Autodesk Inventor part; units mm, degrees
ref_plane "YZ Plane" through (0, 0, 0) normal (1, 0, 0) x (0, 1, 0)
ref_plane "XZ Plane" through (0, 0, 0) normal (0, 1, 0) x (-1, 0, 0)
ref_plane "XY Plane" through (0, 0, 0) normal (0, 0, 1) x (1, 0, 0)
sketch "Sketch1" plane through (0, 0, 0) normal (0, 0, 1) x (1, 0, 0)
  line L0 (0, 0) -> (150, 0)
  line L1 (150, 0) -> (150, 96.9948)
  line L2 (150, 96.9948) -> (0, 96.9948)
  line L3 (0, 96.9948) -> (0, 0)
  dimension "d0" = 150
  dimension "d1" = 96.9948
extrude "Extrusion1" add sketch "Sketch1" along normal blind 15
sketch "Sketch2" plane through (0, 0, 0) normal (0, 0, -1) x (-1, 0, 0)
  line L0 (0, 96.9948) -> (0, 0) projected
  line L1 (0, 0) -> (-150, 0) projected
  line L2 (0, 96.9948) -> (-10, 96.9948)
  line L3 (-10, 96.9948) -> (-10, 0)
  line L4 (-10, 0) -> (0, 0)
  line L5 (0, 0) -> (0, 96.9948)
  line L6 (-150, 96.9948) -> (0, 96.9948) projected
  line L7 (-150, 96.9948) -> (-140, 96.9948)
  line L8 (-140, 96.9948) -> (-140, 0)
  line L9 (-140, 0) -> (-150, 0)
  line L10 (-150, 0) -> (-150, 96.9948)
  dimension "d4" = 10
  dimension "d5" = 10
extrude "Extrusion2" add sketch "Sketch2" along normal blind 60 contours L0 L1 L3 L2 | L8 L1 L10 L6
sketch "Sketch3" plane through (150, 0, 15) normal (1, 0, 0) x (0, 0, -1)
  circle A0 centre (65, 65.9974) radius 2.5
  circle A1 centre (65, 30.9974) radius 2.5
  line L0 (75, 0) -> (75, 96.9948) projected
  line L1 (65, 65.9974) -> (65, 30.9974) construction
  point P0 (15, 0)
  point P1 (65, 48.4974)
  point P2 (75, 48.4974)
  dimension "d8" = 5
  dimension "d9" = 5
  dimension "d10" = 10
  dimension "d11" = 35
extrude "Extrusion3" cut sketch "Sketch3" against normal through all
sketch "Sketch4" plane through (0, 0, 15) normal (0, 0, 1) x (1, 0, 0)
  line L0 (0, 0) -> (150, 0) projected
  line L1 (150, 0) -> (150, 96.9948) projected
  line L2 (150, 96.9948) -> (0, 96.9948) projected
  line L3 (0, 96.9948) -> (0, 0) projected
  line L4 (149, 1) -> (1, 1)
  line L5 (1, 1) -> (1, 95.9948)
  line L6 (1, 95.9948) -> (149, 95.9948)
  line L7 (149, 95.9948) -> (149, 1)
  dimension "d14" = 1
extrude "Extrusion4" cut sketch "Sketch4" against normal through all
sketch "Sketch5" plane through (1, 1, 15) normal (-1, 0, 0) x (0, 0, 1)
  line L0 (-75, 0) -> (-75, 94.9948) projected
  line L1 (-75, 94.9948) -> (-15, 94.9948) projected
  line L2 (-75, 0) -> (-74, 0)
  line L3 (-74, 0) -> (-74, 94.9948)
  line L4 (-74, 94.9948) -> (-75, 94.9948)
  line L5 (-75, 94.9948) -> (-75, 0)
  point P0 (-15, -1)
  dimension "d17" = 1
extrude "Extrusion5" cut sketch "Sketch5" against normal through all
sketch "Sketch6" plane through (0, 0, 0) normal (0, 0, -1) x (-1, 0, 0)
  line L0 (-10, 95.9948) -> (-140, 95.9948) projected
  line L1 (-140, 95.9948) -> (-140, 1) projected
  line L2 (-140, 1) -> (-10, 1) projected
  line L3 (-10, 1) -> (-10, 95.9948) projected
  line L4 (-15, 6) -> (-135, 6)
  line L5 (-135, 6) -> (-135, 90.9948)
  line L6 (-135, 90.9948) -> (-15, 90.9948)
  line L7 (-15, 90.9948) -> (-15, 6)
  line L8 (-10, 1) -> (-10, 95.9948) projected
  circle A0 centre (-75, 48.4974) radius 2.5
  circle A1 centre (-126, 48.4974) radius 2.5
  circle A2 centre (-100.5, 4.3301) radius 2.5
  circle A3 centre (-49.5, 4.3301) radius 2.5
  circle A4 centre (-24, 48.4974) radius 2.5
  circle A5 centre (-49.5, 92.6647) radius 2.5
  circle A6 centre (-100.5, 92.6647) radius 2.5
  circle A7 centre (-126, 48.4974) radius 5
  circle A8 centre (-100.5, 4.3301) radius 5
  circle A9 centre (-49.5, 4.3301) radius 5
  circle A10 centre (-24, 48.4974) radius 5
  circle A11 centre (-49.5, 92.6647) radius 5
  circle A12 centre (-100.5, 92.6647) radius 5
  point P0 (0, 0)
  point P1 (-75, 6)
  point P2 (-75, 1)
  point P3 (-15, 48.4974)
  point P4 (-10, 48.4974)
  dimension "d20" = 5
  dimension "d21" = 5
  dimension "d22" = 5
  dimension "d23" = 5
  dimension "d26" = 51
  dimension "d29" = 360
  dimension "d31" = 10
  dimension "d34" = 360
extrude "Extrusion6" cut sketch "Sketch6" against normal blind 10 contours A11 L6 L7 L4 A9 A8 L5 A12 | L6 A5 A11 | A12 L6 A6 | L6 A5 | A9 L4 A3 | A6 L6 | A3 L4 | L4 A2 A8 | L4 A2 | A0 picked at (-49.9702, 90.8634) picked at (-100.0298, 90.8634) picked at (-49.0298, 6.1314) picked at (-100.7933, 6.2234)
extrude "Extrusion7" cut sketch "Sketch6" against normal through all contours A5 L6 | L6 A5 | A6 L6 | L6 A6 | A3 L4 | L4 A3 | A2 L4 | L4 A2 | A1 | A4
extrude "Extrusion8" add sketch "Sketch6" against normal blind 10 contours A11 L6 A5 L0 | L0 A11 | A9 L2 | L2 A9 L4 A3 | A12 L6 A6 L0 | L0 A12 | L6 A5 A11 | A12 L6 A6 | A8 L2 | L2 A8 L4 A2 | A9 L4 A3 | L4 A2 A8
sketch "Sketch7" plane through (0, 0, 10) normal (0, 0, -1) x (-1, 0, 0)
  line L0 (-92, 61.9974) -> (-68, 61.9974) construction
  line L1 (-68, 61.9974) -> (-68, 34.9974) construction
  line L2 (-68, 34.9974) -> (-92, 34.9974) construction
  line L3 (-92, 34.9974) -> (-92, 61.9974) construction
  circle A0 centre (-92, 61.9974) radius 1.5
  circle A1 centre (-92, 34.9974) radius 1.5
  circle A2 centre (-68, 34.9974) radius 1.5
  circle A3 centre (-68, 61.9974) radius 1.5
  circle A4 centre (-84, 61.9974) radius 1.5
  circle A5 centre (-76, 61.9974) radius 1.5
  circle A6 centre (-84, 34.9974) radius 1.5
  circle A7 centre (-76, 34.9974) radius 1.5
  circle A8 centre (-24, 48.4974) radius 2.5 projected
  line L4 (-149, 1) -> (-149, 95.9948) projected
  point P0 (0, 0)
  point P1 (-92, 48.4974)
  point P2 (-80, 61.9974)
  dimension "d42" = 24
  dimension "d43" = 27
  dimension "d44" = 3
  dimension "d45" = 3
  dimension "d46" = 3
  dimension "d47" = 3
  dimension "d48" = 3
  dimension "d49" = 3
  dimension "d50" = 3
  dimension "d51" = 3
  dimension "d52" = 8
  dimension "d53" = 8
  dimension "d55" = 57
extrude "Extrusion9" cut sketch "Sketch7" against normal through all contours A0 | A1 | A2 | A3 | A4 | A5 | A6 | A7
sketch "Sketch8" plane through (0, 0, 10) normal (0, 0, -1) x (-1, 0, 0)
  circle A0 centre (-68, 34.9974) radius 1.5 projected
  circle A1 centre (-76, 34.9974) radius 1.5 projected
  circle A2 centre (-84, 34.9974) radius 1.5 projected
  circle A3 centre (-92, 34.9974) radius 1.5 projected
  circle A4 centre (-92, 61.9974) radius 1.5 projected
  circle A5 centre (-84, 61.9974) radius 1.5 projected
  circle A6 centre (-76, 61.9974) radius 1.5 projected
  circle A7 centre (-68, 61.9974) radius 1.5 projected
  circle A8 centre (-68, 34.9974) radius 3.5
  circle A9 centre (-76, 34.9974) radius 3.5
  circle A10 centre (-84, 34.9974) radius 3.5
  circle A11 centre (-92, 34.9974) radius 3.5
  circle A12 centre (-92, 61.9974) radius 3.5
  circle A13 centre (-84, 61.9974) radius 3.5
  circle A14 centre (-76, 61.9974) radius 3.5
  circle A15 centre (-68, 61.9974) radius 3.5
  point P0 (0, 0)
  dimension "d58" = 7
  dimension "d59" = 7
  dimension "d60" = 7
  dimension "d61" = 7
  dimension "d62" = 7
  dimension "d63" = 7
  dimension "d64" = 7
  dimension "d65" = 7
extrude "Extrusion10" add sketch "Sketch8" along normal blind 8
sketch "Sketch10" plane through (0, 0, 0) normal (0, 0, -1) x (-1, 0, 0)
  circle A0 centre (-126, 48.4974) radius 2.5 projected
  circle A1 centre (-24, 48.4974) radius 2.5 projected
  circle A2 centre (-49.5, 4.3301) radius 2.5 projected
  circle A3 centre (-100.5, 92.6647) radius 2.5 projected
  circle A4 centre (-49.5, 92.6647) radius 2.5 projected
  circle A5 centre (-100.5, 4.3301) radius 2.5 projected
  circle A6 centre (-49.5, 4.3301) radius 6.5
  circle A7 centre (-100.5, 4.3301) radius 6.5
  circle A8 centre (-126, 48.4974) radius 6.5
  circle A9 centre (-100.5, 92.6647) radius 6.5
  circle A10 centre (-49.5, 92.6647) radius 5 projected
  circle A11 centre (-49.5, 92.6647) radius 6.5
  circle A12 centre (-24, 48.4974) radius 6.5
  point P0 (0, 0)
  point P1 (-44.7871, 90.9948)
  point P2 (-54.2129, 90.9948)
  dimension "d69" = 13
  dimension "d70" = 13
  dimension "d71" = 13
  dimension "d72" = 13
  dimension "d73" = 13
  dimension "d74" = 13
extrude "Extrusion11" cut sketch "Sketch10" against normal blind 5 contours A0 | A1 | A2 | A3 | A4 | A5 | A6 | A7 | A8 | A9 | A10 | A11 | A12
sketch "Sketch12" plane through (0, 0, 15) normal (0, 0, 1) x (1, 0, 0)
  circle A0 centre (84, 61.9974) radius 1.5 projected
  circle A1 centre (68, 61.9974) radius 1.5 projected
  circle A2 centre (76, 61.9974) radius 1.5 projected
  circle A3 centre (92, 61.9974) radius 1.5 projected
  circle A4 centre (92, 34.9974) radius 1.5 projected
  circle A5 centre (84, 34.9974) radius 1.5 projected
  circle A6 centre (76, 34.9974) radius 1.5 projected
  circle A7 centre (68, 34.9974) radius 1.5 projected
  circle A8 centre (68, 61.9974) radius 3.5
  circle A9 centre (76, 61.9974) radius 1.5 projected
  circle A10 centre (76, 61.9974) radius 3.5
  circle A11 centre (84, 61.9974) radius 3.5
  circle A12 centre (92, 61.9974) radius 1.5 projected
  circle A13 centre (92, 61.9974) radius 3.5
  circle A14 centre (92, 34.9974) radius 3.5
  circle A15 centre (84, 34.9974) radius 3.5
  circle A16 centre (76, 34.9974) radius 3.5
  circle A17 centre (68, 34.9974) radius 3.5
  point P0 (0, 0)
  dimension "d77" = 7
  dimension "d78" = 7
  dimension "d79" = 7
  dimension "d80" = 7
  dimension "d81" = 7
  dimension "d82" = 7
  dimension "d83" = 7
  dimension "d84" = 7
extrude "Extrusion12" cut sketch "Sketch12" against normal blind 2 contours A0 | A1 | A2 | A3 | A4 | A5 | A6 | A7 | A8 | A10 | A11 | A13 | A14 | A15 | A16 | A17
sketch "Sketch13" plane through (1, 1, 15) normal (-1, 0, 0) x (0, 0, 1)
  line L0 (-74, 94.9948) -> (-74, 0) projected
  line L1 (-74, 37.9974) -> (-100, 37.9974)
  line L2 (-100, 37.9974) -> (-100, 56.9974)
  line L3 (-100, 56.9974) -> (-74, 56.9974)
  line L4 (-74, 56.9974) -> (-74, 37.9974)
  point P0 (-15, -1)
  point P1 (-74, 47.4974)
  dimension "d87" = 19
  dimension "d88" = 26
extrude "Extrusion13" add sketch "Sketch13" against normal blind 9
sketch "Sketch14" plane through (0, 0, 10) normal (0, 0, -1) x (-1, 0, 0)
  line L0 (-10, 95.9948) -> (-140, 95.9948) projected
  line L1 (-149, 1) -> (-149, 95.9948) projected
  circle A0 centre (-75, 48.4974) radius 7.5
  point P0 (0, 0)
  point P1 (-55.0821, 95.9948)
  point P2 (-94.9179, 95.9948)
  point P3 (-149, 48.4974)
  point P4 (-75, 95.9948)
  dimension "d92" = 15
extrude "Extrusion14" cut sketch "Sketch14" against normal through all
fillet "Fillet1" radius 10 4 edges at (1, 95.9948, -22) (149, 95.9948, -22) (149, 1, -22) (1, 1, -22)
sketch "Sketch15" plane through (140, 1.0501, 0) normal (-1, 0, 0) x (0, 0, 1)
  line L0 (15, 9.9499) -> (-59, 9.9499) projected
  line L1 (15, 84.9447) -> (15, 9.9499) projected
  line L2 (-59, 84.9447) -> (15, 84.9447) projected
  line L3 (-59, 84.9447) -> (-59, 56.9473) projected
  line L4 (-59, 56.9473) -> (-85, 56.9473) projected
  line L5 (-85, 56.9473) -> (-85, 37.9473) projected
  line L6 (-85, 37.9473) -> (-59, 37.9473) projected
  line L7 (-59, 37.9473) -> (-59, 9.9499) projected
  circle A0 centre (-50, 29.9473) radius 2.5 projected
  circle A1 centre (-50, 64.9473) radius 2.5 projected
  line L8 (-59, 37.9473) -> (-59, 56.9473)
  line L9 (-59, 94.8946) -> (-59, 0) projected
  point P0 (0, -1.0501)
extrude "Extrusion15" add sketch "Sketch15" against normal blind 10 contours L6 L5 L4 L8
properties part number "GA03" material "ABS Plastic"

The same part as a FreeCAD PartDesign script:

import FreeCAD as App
import Part
import Sketcher

V = App.Vector


def edges_at(feature, points):
    """Names of the edges that pass closest to the given points."""
    edges = feature.Shape.Edges
    near = lambda p: min(range(len(edges)), key=lambda i: edges[i].distToShape(Part.Vertex(*p))[0])
    return sorted({f"Edge{near(p) + 1}" for p in points})


def add_polygon(sketch, points):
    """Adds a closed chain of lines whose ends are joined by coincident constraints."""
    first, n = sketch.GeometryCount, len(points)
    for a, b in zip(points, points[1:] + points[:1]):
        sketch.addGeometry(Part.LineSegment(App.Vector(*a, 0), App.Vector(*b, 0)), False)
    for i in range(n):
        sketch.addConstraint(Sketcher.Constraint("Coincident", first + i, 2, first + (i + 1) % n, 1))

doc = App.newDocument("Part")
body = doc.addObject("PartDesign::Body", "Body")

# Sketch on XY plane
sketch1 = body.newObject("Sketcher::SketchObject", "Sketch")
sketch1.AttachmentSupport = (doc.getObject("XY_Plane"), [""])
sketch1.MapMode = "FlatFace"
add_polygon(sketch1, [(0, 97), (0, 0), (150, 0), (150, 97)])  # lines 0-3
sketch1.addConstraint(Sketcher.Constraint("Vertical", 0))
sketch1.addConstraint(Sketcher.Constraint("Horizontal", 1))
sketch1.addConstraint(Sketcher.Constraint("Vertical", 2))
sketch1.addConstraint(Sketcher.Constraint("Horizontal", 3))
sketch1.addConstraint(Sketcher.Constraint("Coincident", 0, 2, -1, 1))
sketch1.addConstraint(Sketcher.Constraint("DistanceX", 1, 1, 1, 2, 150.0))
sketch1.addConstraint(Sketcher.Constraint("DistanceY", 0, 2, 0, 1, 96.9948))
pad1 = body.newObject("PartDesign::Pad", "Pad")
pad1.Profile = sketch1
pad1.Length = 15

# Sketch on XY plane
sketch2 = body.newObject("Sketcher::SketchObject", "Sketch001")
sketch2.AttachmentSupport = (doc.getObject("XY_Plane"), [""])
sketch2.MapMode = "FlatFace"
add_polygon(sketch2, [(0, 0), (0, 97), (10, 97), (10, 0)])  # lines 0-3
add_polygon(sketch2, [(140, 0), (140, 97), (150, 97), (150, 0)])  # lines 4-7
sketch2.addConstraint(Sketcher.Constraint("Vertical", 0))
sketch2.addConstraint(Sketcher.Constraint("Horizontal", 1))
sketch2.addConstraint(Sketcher.Constraint("Vertical", 2))
sketch2.addConstraint(Sketcher.Constraint("Horizontal", 3))
sketch2.addConstraint(Sketcher.Constraint("Vertical", 4))
sketch2.addConstraint(Sketcher.Constraint("Horizontal", 5))
sketch2.addConstraint(Sketcher.Constraint("Vertical", 6))
sketch2.addConstraint(Sketcher.Constraint("Horizontal", 7))
sketch2.addConstraint(Sketcher.Constraint("Coincident", 3, 2, -1, 1))
sketch2.addConstraint(Sketcher.Constraint("PointOnObject", 6, 2, -1))
sketch2.addConstraint(Sketcher.Constraint("Horizontal", 1, 2, 4, 2))
sketch2.addConstraint(Sketcher.Constraint("Equal", 3, 5))
sketch2.addConstraint(Sketcher.Constraint("DistanceX", 1, 1, 1, 2, 10.0))
sketch2.addConstraint(Sketcher.Constraint("DistanceX", -1, 1, 4, 2, 140.0))
sketch2.addConstraint(Sketcher.Constraint("DistanceY", 0, 1, 0, 2, 96.9948))
pad2 = body.newObject("PartDesign::Pad", "Pad001")
pad2.Profile = sketch2
pad2.Length = 60
pad2.Reversed = True

# Sketch on YZ plane
sketch3 = body.newObject("Sketcher::SketchObject", "Sketch002")
sketch3.AttachmentSupport = (doc.getObject("YZ_Plane"), [""])
sketch3.MapMode = "FlatFace"
sketch3.AttachmentOffset = App.Placement(V(0, 0, 150), App.Rotation())
sketch3.addGeometry(Part.Circle(V(66, -50, 0), V(0, 0, 1), 2.5), False)
sketch3.addGeometry(Part.Circle(V(31, -50, 0), V(0, 0, 1), 2.5), False)
sketch3.addConstraint(Sketcher.Constraint("Equal", 0, 1))
sketch3.addConstraint(Sketcher.Constraint("Horizontal", 0, 3, 1, 3))
sketch3.addConstraint(Sketcher.Constraint("Diameter", 0, 5.0))
sketch3.addConstraint(Sketcher.Constraint("DistanceX", 1, 3, 0, 3, 35.0))
sketch3.addConstraint(Sketcher.Constraint("DistanceY", 0, 3, -1, 1, 50.0))
sketch3.addConstraint(Sketcher.Constraint("DistanceX", -1, 1, 0, 3, 65.9974))
pocket1 = body.newObject("PartDesign::Pocket", "Pocket")
pocket1.Profile = sketch3
pocket1.Type = "ThroughAll"

# Sketch on XY plane
sketch4 = body.newObject("Sketcher::SketchObject", "Sketch003")
sketch4.AttachmentSupport = (doc.getObject("XY_Plane"), [""])
sketch4.MapMode = "FlatFace"
sketch4.AttachmentOffset = App.Placement(V(0, 0, 15), App.Rotation())
add_polygon(sketch4, [(0, 97), (0, 0), (150, 0), (150, 97)])  # lines 0-3
add_polygon(sketch4, [(149, 96), (149, 1), (1, 1), (1, 96)])  # lines 4-7
sketch4.addConstraint(Sketcher.Constraint("Vertical", 0))
sketch4.addConstraint(Sketcher.Constraint("Horizontal", 1))
sketch4.addConstraint(Sketcher.Constraint("Vertical", 2))
sketch4.addConstraint(Sketcher.Constraint("Horizontal", 3))
sketch4.addConstraint(Sketcher.Constraint("Vertical", 4))
sketch4.addConstraint(Sketcher.Constraint("Horizontal", 5))
sketch4.addConstraint(Sketcher.Constraint("Vertical", 6))
sketch4.addConstraint(Sketcher.Constraint("Horizontal", 7))
sketch4.addConstraint(Sketcher.Constraint("Coincident", 0, 2, -1, 1))
sketch4.addConstraint(Sketcher.Constraint("DistanceY", -1, 1, 4, 2, 1.0))
sketch4.addConstraint(Sketcher.Constraint("DistanceX", -1, 1, 5, 2, 1.0))
sketch4.addConstraint(Sketcher.Constraint("DistanceX", 4, 2, 1, 2, 1.0))
sketch4.addConstraint(Sketcher.Constraint("DistanceY", 6, 2, 3, 2, 1.0))
sketch4.addConstraint(Sketcher.Constraint("DistanceX", 1, 1, 1, 2, 150.0))
sketch4.addConstraint(Sketcher.Constraint("DistanceY", 0, 2, 0, 1, 96.9948))
pocket2 = body.newObject("PartDesign::Pocket", "Pocket001")
pocket2.Profile = sketch4
pocket2.Type = "ThroughAll"

# Sketch on YZ plane
sketch5 = body.newObject("Sketcher::SketchObject", "Sketch004")
sketch5.AttachmentSupport = (doc.getObject("YZ_Plane"), [""])
sketch5.MapMode = "FlatFace"
sketch5.AttachmentOffset = App.Placement(V(0, 0, 1), App.Rotation())
add_polygon(sketch5, [(96, -60), (1, -60), (1, -59), (96, -59)])  # lines 0-3
sketch5.addConstraint(Sketcher.Constraint("Horizontal", 0))
sketch5.addConstraint(Sketcher.Constraint("Vertical", 1))
sketch5.addConstraint(Sketcher.Constraint("Horizontal", 2))
sketch5.addConstraint(Sketcher.Constraint("Vertical", 3))
sketch5.addConstraint(Sketcher.Constraint("DistanceY", 1, 1, 1, 2, 1.0))
sketch5.addConstraint(Sketcher.Constraint("DistanceX", -1, 1, 0, 2, 1.0))
sketch5.addConstraint(Sketcher.Constraint("DistanceY", 0, 2, -1, 1, 60.0))
sketch5.addConstraint(Sketcher.Constraint("DistanceX", 0, 2, 0, 1, 94.9948))
pocket3 = body.newObject("PartDesign::Pocket", "Pocket002")
pocket3.Profile = sketch5
pocket3.Type = "ThroughAll"
pocket3.Reversed = True

# Sketch on XY plane
sketch6 = body.newObject("Sketcher::SketchObject", "Sketch005")
sketch6.AttachmentSupport = (doc.getObject("XY_Plane"), [""])
sketch6.MapMode = "FlatFace"
add_polygon(sketch6, [(15, 91), (135, 91), (135, 6), (15, 6)])  # lines 0-3
sketch6.addGeometry(Part.Circle(V(126, 48, 0), V(0, 0, 1), 5), False)  # 4
sketch6.addGeometry(Part.Circle(V(24, 48, 0), V(0, 0, 1), 5), False)  # 5
sketch6.addConstraint(Sketcher.Constraint("Horizontal", 0))
sketch6.addConstraint(Sketcher.Constraint("Vertical", 1))
sketch6.addConstraint(Sketcher.Constraint("Horizontal", 2))
sketch6.addConstraint(Sketcher.Constraint("Vertical", 3))
sketch6.addConstraint(Sketcher.Constraint("Equal", 4, 5))
sketch6.addConstraint(Sketcher.Constraint("Horizontal", 4, 3, 5, 3))
sketch6.addConstraint(Sketcher.Constraint("Diameter", 4, 10.0))
sketch6.addConstraint(Sketcher.Constraint("DistanceX", 0, 1, 0, 2, 120.0))
sketch6.addConstraint(Sketcher.Constraint("DistanceX", -1, 1, 4, 3, 126.0))
sketch6.addConstraint(Sketcher.Constraint("DistanceX", -1, 1, 5, 3, 24.0))
sketch6.addConstraint(Sketcher.Constraint("DistanceX", -1, 1, 0, 2, 135.0))
sketch6.addConstraint(Sketcher.Constraint("DistanceY", -1, 1, 1, 2, 6.0))
sketch6.addConstraint(Sketcher.Constraint("DistanceY", 1, 2, 1, 1, 84.9948))
sketch6.addConstraint(Sketcher.Constraint("DistanceY", -1, 1, 4, 3, 48.4974))
pocket4 = body.newObject("PartDesign::Pocket", "Pocket003")
pocket4.Profile = sketch6
pocket4.Length = 10
pocket4.Reversed = True

# Sketch on XY plane
sketch7 = body.newObject("Sketcher::SketchObject", "Sketch006")
sketch7.AttachmentSupport = (doc.getObject("XY_Plane"), [""])
sketch7.MapMode = "FlatFace"
sketch7.addGeometry(Part.Circle(V(49.5, 92.7, 0), V(0, 0, 1), 2.5), False)
sketch7.addGeometry(Part.Circle(V(100.5, 92.7, 0), V(0, 0, 1), 2.5), False)
sketch7.addGeometry(Part.Circle(V(49.5, 4.3, 0), V(0, 0, 1), 2.5), False)
sketch7.addGeometry(Part.Circle(V(100.5, 4.3, 0), V(0, 0, 1), 2.5), False)
sketch7.addGeometry(Part.Circle(V(126, 48.5, 0), V(0, 0, 1), 2.5), False)
sketch7.addGeometry(Part.Circle(V(24, 48.5, 0), V(0, 0, 1), 2.5), False)
sketch7.addConstraint(Sketcher.Constraint("Equal", 0, 1))
sketch7.addConstraint(Sketcher.Constraint("Equal", 1, 2))
sketch7.addConstraint(Sketcher.Constraint("Equal", 2, 3))
sketch7.addConstraint(Sketcher.Constraint("Equal", 3, 4))
sketch7.addConstraint(Sketcher.Constraint("Equal", 4, 5))
sketch7.addConstraint(Sketcher.Constraint("Horizontal", 0, 3, 1, 3))
sketch7.addConstraint(Sketcher.Constraint("Horizontal", 2, 3, 3, 3))
sketch7.addConstraint(Sketcher.Constraint("Horizontal", 4, 3, 5, 3))
sketch7.addConstraint(Sketcher.Constraint("Vertical", 0, 3, 2, 3))
sketch7.addConstraint(Sketcher.Constraint("Vertical", 1, 3, 3, 3))
sketch7.addConstraint(Sketcher.Constraint("Diameter", 0, 5.0))
sketch7.addConstraint(Sketcher.Constraint("DistanceX", 0, 3, 1, 3, 51.0))
sketch7.addConstraint(Sketcher.Constraint("DistanceX", -1, 1, 4, 3, 126.0))
sketch7.addConstraint(Sketcher.Constraint("DistanceX", -1, 1, 5, 3, 24.0))
sketch7.addConstraint(Sketcher.Constraint("DistanceX", -1, 1, 0, 3, 49.5))
sketch7.addConstraint(Sketcher.Constraint("DistanceY", -1, 1, 2, 3, 4.33))
sketch7.addConstraint(Sketcher.Constraint("DistanceY", -1, 1, 0, 3, 92.6647))
sketch7.addConstraint(Sketcher.Constraint("DistanceY", -1, 1, 4, 3, 48.4974))
pocket5 = body.newObject("PartDesign::Pocket", "Pocket004")
pocket5.Profile = sketch7
pocket5.Type = "ThroughAll"
pocket5.Reversed = True

# Sketch on XY plane
sketch8 = body.newObject("Sketcher::SketchObject", "Sketch007")
sketch8.AttachmentSupport = (doc.getObject("XY_Plane"), [""])
sketch8.MapMode = "FlatFace"
sketch8.addGeometry(Part.Circle(V(49.5, 92.7, 0), V(0, 0, 1), 5), False)
sketch8.addGeometry(Part.Circle(V(49.5, 92.7, 0), V(0, 0, 1), 2.5), False)
sketch8.addGeometry(Part.Circle(V(49.5, 4.3, 0), V(0, 0, 1), 5), False)
sketch8.addGeometry(Part.Circle(V(49.5, 4.3, 0), V(0, 0, 1), 2.5), False)
sketch8.addGeometry(Part.Circle(V(100.5, 92.7, 0), V(0, 0, 1), 5), False)
sketch8.addGeometry(Part.Circle(V(100.5, 92.7, 0), V(0, 0, 1), 2.5), False)
sketch8.addGeometry(Part.Circle(V(100.5, 4.3, 0), V(0, 0, 1), 5), False)
sketch8.addGeometry(Part.Circle(V(100.5, 4.3, 0), V(0, 0, 1), 2.5), False)
sketch8.addConstraint(Sketcher.Constraint("Coincident", 1, 3, 0, 3))
sketch8.addConstraint(Sketcher.Constraint("Coincident", 3, 3, 2, 3))
sketch8.addConstraint(Sketcher.Constraint("Coincident", 5, 3, 4, 3))
sketch8.addConstraint(Sketcher.Constraint("Coincident", 7, 3, 6, 3))
sketch8.addConstraint(Sketcher.Constraint("Equal", 0, 2))
sketch8.addConstraint(Sketcher.Constraint("Equal", 1, 3))
sketch8.addConstraint(Sketcher.Constraint("Equal", 2, 4))
sketch8.addConstraint(Sketcher.Constraint("Equal", 3, 5))
sketch8.addConstraint(Sketcher.Constraint("Equal", 4, 6))
sketch8.addConstraint(Sketcher.Constraint("Equal", 5, 7))
sketch8.addConstraint(Sketcher.Constraint("Horizontal", 1, 3, 4, 3))
sketch8.addConstraint(Sketcher.Constraint("Horizontal", 3, 3, 6, 3))
sketch8.addConstraint(Sketcher.Constraint("Vertical", 1, 3, 2, 3))
sketch8.addConstraint(Sketcher.Constraint("Vertical", 5, 3, 6, 3))
sketch8.addConstraint(Sketcher.Constraint("Diameter", 0, 10.0))
sketch8.addConstraint(Sketcher.Constraint("Diameter", 1, 5.0))
sketch8.addConstraint(Sketcher.Constraint("DistanceX", 0, 3, 4, 3, 51.0))
sketch8.addConstraint(Sketcher.Constraint("DistanceX", -1, 1, 0, 3, 49.5))
sketch8.addConstraint(Sketcher.Constraint("DistanceY", -1, 1, 2, 3, 4.33))
sketch8.addConstraint(Sketcher.Constraint("DistanceY", -1, 1, 0, 3, 92.6647))
pad3 = body.newObject("PartDesign::Pad", "Pad002")
pad3.Profile = sketch8
pad3.Length = 10

# Sketch on XY plane
sketch9 = body.newObject("Sketcher::SketchObject", "Sketch008")
sketch9.AttachmentSupport = (doc.getObject("XY_Plane"), [""])
sketch9.MapMode = "FlatFace"
sketch9.AttachmentOffset = App.Placement(V(0, 0, 10), App.Rotation())
sketch9.addGeometry(Part.Circle(V(92, 62, 0), V(0, 0, 1), 1.5), False)
sketch9.addGeometry(Part.Circle(V(92, 35, 0), V(0, 0, 1), 1.5), False)
sketch9.addGeometry(Part.Circle(V(68, 35, 0), V(0, 0, 1), 1.5), False)
sketch9.addGeometry(Part.Circle(V(68, 62, 0), V(0, 0, 1), 1.5), False)
sketch9.addGeometry(Part.Circle(V(84, 62, 0), V(0, 0, 1), 1.5), False)
sketch9.addGeometry(Part.Circle(V(76, 62, 0), V(0, 0, 1), 1.5), False)
sketch9.addGeometry(Part.Circle(V(84, 35, 0), V(0, 0, 1), 1.5), False)
sketch9.addGeometry(Part.Circle(V(76, 35, 0), V(0, 0, 1), 1.5), False)
sketch9.addConstraint(Sketcher.Constraint("Equal", 0, 1))
sketch9.addConstraint(Sketcher.Constraint("Equal", 1, 2))
sketch9.addConstraint(Sketcher.Constraint("Equal", 2, 3))
sketch9.addConstraint(Sketcher.Constraint("Equal", 3, 4))
sketch9.addConstraint(Sketcher.Constraint("Equal", 4, 5))
sketch9.addConstraint(Sketcher.Constraint("Equal", 5, 6))
sketch9.addConstraint(Sketcher.Constraint("Equal", 6, 7))
sketch9.addConstraint(Sketcher.Constraint("Horizontal", 1, 3, 2, 3))
sketch9.addConstraint(Sketcher.Constraint("Horizontal", 0, 3, 3, 3))
sketch9.addConstraint(Sketcher.Constraint("Horizontal", 3, 3, 4, 3))
sketch9.addConstraint(Sketcher.Constraint("Horizontal", 4, 3, 5, 3))
sketch9.addConstraint(Sketcher.Constraint("Horizontal", 2, 3, 6, 3))
sketch9.addConstraint(Sketcher.Constraint("Horizontal", 6, 3, 7, 3))
sketch9.addConstraint(Sketcher.Constraint("Vertical", 0, 3, 1, 3))
sketch9.addConstraint(Sketcher.Constraint("Vertical", 2, 3, 3, 3))
sketch9.addConstraint(Sketcher.Constraint("Vertical", 4, 3, 6, 3))
sketch9.addConstraint(Sketcher.Constraint("Vertical", 5, 3, 7, 3))
sketch9.addConstraint(Sketcher.Constraint("Diameter", 0, 3.0))
sketch9.addConstraint(Sketcher.Constraint("DistanceY", 1, 3, 0, 3, 27.0))
sketch9.addConstraint(Sketcher.Constraint("DistanceX", 2, 3, 1, 3, 24.0))
sketch9.addConstraint(Sketcher.Constraint("DistanceX", 4, 3, 0, 3, 8.0))
sketch9.addConstraint(Sketcher.Constraint("DistanceX", 3, 3, 5, 3, 8.0))
sketch9.addConstraint(Sketcher.Constraint("DistanceX", -1, 1, 0, 3, 92.0))
sketch9.addConstraint(Sketcher.Constraint("DistanceY", -1, 1, 0, 3, 61.9974))
pocket6 = body.newObject("PartDesign::Pocket", "Pocket005")
pocket6.Profile = sketch9
pocket6.Type = "ThroughAll"
pocket6.Reversed = True

# Sketch on XY plane
sketch10 = body.newObject("Sketcher::SketchObject", "Sketch009")
sketch10.AttachmentSupport = (doc.getObject("XY_Plane"), [""])
sketch10.MapMode = "FlatFace"
sketch10.AttachmentOffset = App.Placement(V(0, 0, 10), App.Rotation())
sketch10.addGeometry(Part.Circle(V(68, 35, 0), V(0, 0, 1), 3.5), False)
sketch10.addGeometry(Part.Circle(V(68, 35, 0), V(0, 0, 1), 1.5), False)
sketch10.addGeometry(Part.Circle(V(76, 35, 0), V(0, 0, 1), 3.5), False)
sketch10.addGeometry(Part.Circle(V(76, 35, 0), V(0, 0, 1), 1.5), False)
sketch10.addGeometry(Part.Circle(V(84, 35, 0), V(0, 0, 1), 3.5), False)
sketch10.addGeometry(Part.Circle(V(84, 35, 0), V(0, 0, 1), 1.5), False)
sketch10.addGeometry(Part.Circle(V(92, 35, 0), V(0, 0, 1), 3.5), False)
sketch10.addGeometry(Part.Circle(V(92, 35, 0), V(0, 0, 1), 1.5), False)
sketch10.addGeometry(Part.Circle(V(92, 62, 0), V(0, 0, 1), 3.5), False)
sketch10.addGeometry(Part.Circle(V(92, 62, 0), V(0, 0, 1), 1.5), False)
sketch10.addGeometry(Part.Circle(V(84, 62, 0), V(0, 0, 1), 3.5), False)
sketch10.addGeometry(Part.Circle(V(84, 62, 0), V(0, 0, 1), 1.5), False)
sketch10.addGeometry(Part.Circle(V(76, 62, 0), V(0, 0, 1), 3.5), False)
sketch10.addGeometry(Part.Circle(V(76, 62, 0), V(0, 0, 1), 1.5), False)
sketch10.addGeometry(Part.Circle(V(68, 62, 0), V(0, 0, 1), 3.5), False)
sketch10.addGeometry(Part.Circle(V(68, 62, 0), V(0, 0, 1), 1.5), False)
sketch10.addConstraint(Sketcher.Constraint("Coincident", 1, 3, 0, 3))
sketch10.addConstraint(Sketcher.Constraint("Coincident", 3, 3, 2, 3))
sketch10.addConstraint(Sketcher.Constraint("Coincident", 5, 3, 4, 3))
sketch10.addConstraint(Sketcher.Constraint("Coincident", 7, 3, 6, 3))
sketch10.addConstraint(Sketcher.Constraint("Coincident", 9, 3, 8, 3))
sketch10.addConstraint(Sketcher.Constraint("Coincident", 11, 3, 10, 3))
sketch10.addConstraint(Sketcher.Constraint("Coincident", 13, 3, 12, 3))
sketch10.addConstraint(Sketcher.Constraint("Coincident", 15, 3, 14, 3))
sketch10.addConstraint(Sketcher.Constraint("Equal", 0, 2))
sketch10.addConstraint(Sketcher.Constraint("Equal", 1, 3))
sketch10.addConstraint(Sketcher.Constraint("Equal", 2, 4))
sketch10.addConstraint(Sketcher.Constraint("Equal", 3, 5))
sketch10.addConstraint(Sketcher.Constraint("Equal", 4, 6))
sketch10.addConstraint(Sketcher.Constraint("Equal", 5, 7))
sketch10.addConstraint(Sketcher.Constraint("Equal", 6, 8))
sketch10.addConstraint(Sketcher.Constraint("Equal", 7, 9))
sketch10.addConstraint(Sketcher.Constraint("Equal", 8, 10))
sketch10.addConstraint(Sketcher.Constraint("Equal", 9, 11))
sketch10.addConstraint(Sketcher.Constraint("Equal", 10, 12))
sketch10.addConstraint(Sketcher.Constraint("Equal", 11, 13))
sketch10.addConstraint(Sketcher.Constraint("Equal", 12, 14))
sketch10.addConstraint(Sketcher.Constraint("Equal", 13, 15))
sketch10.addConstraint(Sketcher.Constraint("Horizontal", 1, 3, 2, 3))
sketch10.addConstraint(Sketcher.Constraint("Horizontal", 3, 3, 4, 3))
sketch10.addConstraint(Sketcher.Constraint("Horizontal", 5, 3, 6, 3))
sketch10.addConstraint(Sketcher.Constraint("Horizontal", 9, 3, 10, 3))
sketch10.addConstraint(Sketcher.Constraint("Horizontal", 11, 3, 12, 3))
sketch10.addConstraint(Sketcher.Constraint("Horizontal", 13, 3, 14, 3))
sketch10.addConstraint(Sketcher.Constraint("Vertical", 7, 3, 8, 3))
sketch10.addConstraint(Sketcher.Constraint("Vertical", 5, 3, 10, 3))
sketch10.addConstraint(Sketcher.Constraint("Vertical", 3, 3, 12, 3))
sketch10.addConstraint(Sketcher.Constraint("Vertical", 1, 3, 14, 3))
sketch10.addConstraint(Sketcher.Constraint("Diameter", 0, 7.0))
sketch10.addConstraint(Sketcher.Constraint("Diameter", 1, 3.0))
sketch10.addConstraint(Sketcher.Constraint("DistanceX", -1, 1, 0, 3, 68.0))
sketch10.addConstraint(Sketcher.Constraint("DistanceX", -1, 1, 2, 3, 76.0))
sketch10.addConstraint(Sketcher.Constraint("DistanceX", -1, 1, 4, 3, 84.0))
sketch10.addConstraint(Sketcher.Constraint("DistanceX", -1, 1, 6, 3, 92.0))
sketch10.addConstraint(Sketcher.Constraint("DistanceY", 6, 3, 8, 3, 27.0))
sketch10.addConstraint(Sketcher.Constraint("DistanceY", -1, 1, 0, 3, 34.9974))
pad4 = body.newObject("PartDesign::Pad", "Pad003")
pad4.Profile = sketch10
pad4.Length = 8
pad4.Reversed = True

# Sketch on XY plane
sketch11 = body.newObject("Sketcher::SketchObject", "Sketch010")
sketch11.AttachmentSupport = (doc.getObject("XY_Plane"), [""])
sketch11.MapMode = "FlatFace"
sketch11.addGeometry(Part.Circle(V(126, 48, 0), V(0, 0, 1), 6), False)
sketch11.addGeometry(Part.Circle(V(24, 48, 0), V(0, 0, 1), 6), False)
sketch11.addGeometry(Part.Circle(V(50, 4, 0), V(0, 0, 1), 6), False)
sketch11.addGeometry(Part.Circle(V(100, 93, 0), V(0, 0, 1), 6), False)
sketch11.addGeometry(Part.Circle(V(50, 93, 0), V(0, 0, 1), 6), False)
sketch11.addGeometry(Part.Circle(V(100, 4, 0), V(0, 0, 1), 6), False)
sketch11.addConstraint(Sketcher.Constraint("Equal", 0, 1))
sketch11.addConstraint(Sketcher.Constraint("Equal", 1, 2))
sketch11.addConstraint(Sketcher.Constraint("Equal", 2, 3))
sketch11.addConstraint(Sketcher.Constraint("Equal", 3, 4))
sketch11.addConstraint(Sketcher.Constraint("Equal", 4, 5))
sketch11.addConstraint(Sketcher.Constraint("Horizontal", 0, 3, 1, 3))
sketch11.addConstraint(Sketcher.Constraint("Horizontal", 3, 3, 4, 3))
sketch11.addConstraint(Sketcher.Constraint("Horizontal", 2, 3, 5, 3))
sketch11.addConstraint(Sketcher.Constraint("Vertical", 2, 3, 4, 3))
sketch11.addConstraint(Sketcher.Constraint("Vertical", 3, 3, 5, 3))
sketch11.addConstraint(Sketcher.Constraint("Diameter", 0, 13.0))
sketch11.addConstraint(Sketcher.Constraint("DistanceX", -1, 1, 0, 3, 126.0))
sketch11.addConstraint(Sketcher.Constraint("DistanceX", -1, 1, 1, 3, 24.0))
sketch11.addConstraint(Sketcher.Constraint("DistanceX", 2, 3, 3, 3, 51.0))
sketch11.addConstraint(Sketcher.Constraint("DistanceX", -1, 1, 2, 3, 49.5))
sketch11.addConstraint(Sketcher.Constraint("DistanceY", -1, 1, 2, 3, 4.33))
sketch11.addConstraint(Sketcher.Constraint("DistanceY", -1, 1, 0, 3, 48.4974))
sketch11.addConstraint(Sketcher.Constraint("DistanceY", -1, 1, 3, 3, 92.6647))
pocket7 = body.newObject("PartDesign::Pocket", "Pocket006")
pocket7.Profile = sketch11
pocket7.Length = 5
pocket7.Reversed = True

# Sketch on XY plane
sketch12 = body.newObject("Sketcher::SketchObject", "Sketch011")
sketch12.AttachmentSupport = (doc.getObject("XY_Plane"), [""])
sketch12.MapMode = "FlatFace"
sketch12.AttachmentOffset = App.Placement(V(0, 0, 15), App.Rotation())
sketch12.addGeometry(Part.Circle(V(84, 62, 0), V(0, 0, 1), 3.5), False)
sketch12.addGeometry(Part.Circle(V(68, 62, 0), V(0, 0, 1), 3.5), False)
sketch12.addGeometry(Part.Circle(V(76, 62, 0), V(0, 0, 1), 3.5), False)
sketch12.addGeometry(Part.Circle(V(92, 62, 0), V(0, 0, 1), 3.5), False)
sketch12.addGeometry(Part.Circle(V(92, 35, 0), V(0, 0, 1), 3.5), False)
sketch12.addGeometry(Part.Circle(V(84, 35, 0), V(0, 0, 1), 3.5), False)
sketch12.addGeometry(Part.Circle(V(76, 35, 0), V(0, 0, 1), 3.5), False)
sketch12.addGeometry(Part.Circle(V(68, 35, 0), V(0, 0, 1), 3.5), False)
sketch12.addConstraint(Sketcher.Constraint("Equal", 0, 1))
sketch12.addConstraint(Sketcher.Constraint("Equal", 1, 2))
sketch12.addConstraint(Sketcher.Constraint("Equal", 2, 3))
sketch12.addConstraint(Sketcher.Constraint("Equal", 3, 4))
sketch12.addConstraint(Sketcher.Constraint("Equal", 4, 5))
sketch12.addConstraint(Sketcher.Constraint("Equal", 5, 6))
sketch12.addConstraint(Sketcher.Constraint("Equal", 6, 7))
sketch12.addConstraint(Sketcher.Constraint("Horizontal", 0, 3, 1, 3))
sketch12.addConstraint(Sketcher.Constraint("Horizontal", 1, 3, 2, 3))
sketch12.addConstraint(Sketcher.Constraint("Horizontal", 2, 3, 3, 3))
sketch12.addConstraint(Sketcher.Constraint("Horizontal", 4, 3, 5, 3))
sketch12.addConstraint(Sketcher.Constraint("Horizontal", 5, 3, 6, 3))
sketch12.addConstraint(Sketcher.Constraint("Horizontal", 6, 3, 7, 3))
sketch12.addConstraint(Sketcher.Constraint("Vertical", 3, 3, 4, 3))
sketch12.addConstraint(Sketcher.Constraint("Vertical", 0, 3, 5, 3))
sketch12.addConstraint(Sketcher.Constraint("Vertical", 2, 3, 6, 3))
sketch12.addConstraint(Sketcher.Constraint("Vertical", 1, 3, 7, 3))
sketch12.addConstraint(Sketcher.Constraint("Diameter", 0, 7.0))
sketch12.addConstraint(Sketcher.Constraint("DistanceX", -1, 1, 0, 3, 84.0))
sketch12.addConstraint(Sketcher.Constraint("DistanceX", -1, 1, 1, 3, 68.0))
sketch12.addConstraint(Sketcher.Constraint("DistanceX", -1, 1, 2, 3, 76.0))
sketch12.addConstraint(Sketcher.Constraint("DistanceX", -1, 1, 3, 3, 92.0))
sketch12.addConstraint(Sketcher.Constraint("DistanceY", 4, 3, 3, 3, 27.0))
sketch12.addConstraint(Sketcher.Constraint("DistanceY", -1, 1, 0, 3, 61.9974))
pocket8 = body.newObject("PartDesign::Pocket", "Pocket007")
pocket8.Profile = sketch12
pocket8.Length = 2

# Sketch on YZ plane
sketch13 = body.newObject("Sketcher::SketchObject", "Sketch012")
sketch13.AttachmentSupport = (doc.getObject("YZ_Plane"), [""])
sketch13.MapMode = "FlatFace"
sketch13.AttachmentOffset = App.Placement(V(0, 0, 1), App.Rotation())
add_polygon(sketch13, [(39, -59), (58, -59), (58, -85), (39, -85)])  # lines 0-3
sketch13.addConstraint(Sketcher.Constraint("Horizontal", 0))
sketch13.addConstraint(Sketcher.Constraint("Vertical", 1))
sketch13.addConstraint(Sketcher.Constraint("Horizontal", 2))
sketch13.addConstraint(Sketcher.Constraint("Vertical", 3))
sketch13.addConstraint(Sketcher.Constraint("DistanceX", 0, 1, 0, 2, 19.0))
sketch13.addConstraint(Sketcher.Constraint("DistanceY", 1, 2, 1, 1, 26.0))
sketch13.addConstraint(Sketcher.Constraint("DistanceY", 0, 2, -1, 1, 59.0))
sketch13.addConstraint(Sketcher.Constraint("DistanceX", -1, 1, 0, 2, 57.9974))
pad5 = body.newObject("PartDesign::Pad", "Pad004")
pad5.Profile = sketch13
pad5.Length = 9

# Sketch on XY plane
sketch14 = body.newObject("Sketcher::SketchObject", "Sketch013")
sketch14.AttachmentSupport = (doc.getObject("XY_Plane"), [""])
sketch14.MapMode = "FlatFace"
sketch14.AttachmentOffset = App.Placement(V(0, 0, 10), App.Rotation())
sketch14.addGeometry(Part.Circle(V(75, 48, 0), V(0, 0, 1), 8), False)
sketch14.addConstraint(Sketcher.Constraint("Diameter", 0, 15.0))
sketch14.addConstraint(Sketcher.Constraint("DistanceX", -1, 1, 0, 3, 75.0))
sketch14.addConstraint(Sketcher.Constraint("DistanceY", -1, 1, 0, 3, 48.4974))
pocket9 = body.newObject("PartDesign::Pocket", "Pocket008")
pocket9.Profile = sketch14
pocket9.Type = "ThroughAll"
pocket9.Reversed = True
doc.recompute()

fillet = body.newObject("PartDesign::Fillet", "Fillet")
fillet.Base = (pocket9, edges_at(pocket9, [
    (1, 95.995, -22),
    (149, 95.995, -22),
    (149, 1, -22),
    (1, 1, -22),
]))
fillet.Radius = 10

# Sketch on YZ plane
sketch15 = body.newObject("Sketcher::SketchObject", "Sketch014")
sketch15.AttachmentSupport = (doc.getObject("YZ_Plane"), [""])
sketch15.MapMode = "FlatFace"
sketch15.AttachmentOffset = App.Placement(V(0, 0, 140), App.Rotation())
add_polygon(sketch15, [(39, -85), (39, -59), (58, -59), (58, -85)])  # lines 0-3
sketch15.addConstraint(Sketcher.Constraint("Vertical", 0))
sketch15.addConstraint(Sketcher.Constraint("Horizontal", 1))
sketch15.addConstraint(Sketcher.Constraint("Vertical", 2))
sketch15.addConstraint(Sketcher.Constraint("Horizontal", 3))
sketch15.addConstraint(Sketcher.Constraint("DistanceX", 1, 1, 1, 2, 19.0))
sketch15.addConstraint(Sketcher.Constraint("DistanceY", 0, 1, 0, 2, 26.0))
sketch15.addConstraint(Sketcher.Constraint("DistanceY", 0, 2, -1, 1, 59.0))
sketch15.addConstraint(Sketcher.Constraint("DistanceX", -1, 1, 0, 2, 38.9974))
pad6 = body.newObject("PartDesign::Pad", "Pad005")
pad6.Profile = sketch15
pad6.Length = 10

doc.recompute()
